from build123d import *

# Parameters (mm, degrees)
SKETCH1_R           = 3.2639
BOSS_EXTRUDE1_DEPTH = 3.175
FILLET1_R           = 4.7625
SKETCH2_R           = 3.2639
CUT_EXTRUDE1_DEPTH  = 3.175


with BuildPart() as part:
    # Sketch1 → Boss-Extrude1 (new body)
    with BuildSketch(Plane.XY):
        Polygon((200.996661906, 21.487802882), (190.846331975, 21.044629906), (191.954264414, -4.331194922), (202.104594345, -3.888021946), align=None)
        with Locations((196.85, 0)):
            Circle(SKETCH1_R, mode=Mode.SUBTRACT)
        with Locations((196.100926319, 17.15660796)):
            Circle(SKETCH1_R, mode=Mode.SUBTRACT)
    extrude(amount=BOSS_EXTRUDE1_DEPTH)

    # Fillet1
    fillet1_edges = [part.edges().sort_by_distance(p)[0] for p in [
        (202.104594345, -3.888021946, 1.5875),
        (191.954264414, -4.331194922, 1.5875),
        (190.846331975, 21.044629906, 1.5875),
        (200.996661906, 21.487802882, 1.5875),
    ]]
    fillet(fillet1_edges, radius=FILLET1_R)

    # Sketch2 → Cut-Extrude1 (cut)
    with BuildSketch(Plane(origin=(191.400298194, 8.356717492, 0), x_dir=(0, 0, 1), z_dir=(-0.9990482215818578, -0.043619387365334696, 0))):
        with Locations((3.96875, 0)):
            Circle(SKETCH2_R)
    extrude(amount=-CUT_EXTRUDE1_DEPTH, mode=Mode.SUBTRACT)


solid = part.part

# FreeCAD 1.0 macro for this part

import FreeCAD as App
import Part
import Sketcher

V = App.Vector
Q = App.Units.Quantity


def edges_at(feature, points):
    """Names of the edges that pass closest to the given points."""
    edges = feature.Shape.Edges
    near = lambda p: min(range(len(edges)), key=lambda i: edges[i].distToShape(Part.Vertex(*p))[0])
    return sorted({f"Edge{near(p) + 1}" for p in points})


def add_polygon(sketch, points):
    """Adds a closed chain of lines whose ends are joined by coincident constraints."""
    first, n = sketch.GeometryCount, len(points)
    for a, b in zip(points, points[1:] + points[:1]):
        sketch.addGeometry(Part.LineSegment(App.Vector(*a, 0), App.Vector(*b, 0)), False)
    for i in range(n):
        sketch.addConstraint(Sketcher.Constraint("Coincident", first + i, 2, first + (i + 1) % n, 1))

doc = App.newDocument("Part")
body = doc.addObject("PartDesign::Body", "Body")

# Sketch on XY plane
sketch1 = body.newObject("Sketcher::SketchObject", "Sketch")
sketch1.AttachmentSupport = (doc.getObject("XY_Plane"), [""])
sketch1.MapMode = "FlatFace"
add_polygon(sketch1, [(200.996662, 21.487803), (190.846332, 21.04463), (191.954264, -4.331195), (202.104594, -3.888022)])  # lines 0-3
sketch1.addGeometry(Part.Circle(V(196.85, 0, 0), V(0, 0, 1), 3.2639), False)  # 4
sketch1.addGeometry(Part.Circle(V(196.100926, 17.156608, 0), V(0, 0, 1), 3.2639), False)  # 5
sketch1.addConstraint([
    Sketcher.Constraint("Equal", 4, 5),
    Sketcher.Constraint("PointOnObject", 4, 3, -1),
    Sketcher.Constraint("Perpendicular", 0, 1),
    Sketcher.Constraint("Perpendicular", 1, 2),
    Sketcher.Constraint("Perpendicular", 2, 3),
    Sketcher.Constraint("Distance", 1, Q("1 in")),
    Sketcher.Constraint("Diameter", 4, Q("0.257 in")),
    Sketcher.Constraint("Distance", 0, Q("0.4 in")),
    Sketcher.Constraint("Angle", 0, Q("-177.5 deg")),
    Sketcher.Constraint("DistanceX", -1, 1, 4, 3, Q("7.75 in")),
    Sketcher.Constraint("DistanceX", -1, 1, 0, 2, 190.846332),
    Sketcher.Constraint("DistanceY", -1, 1, 0, 2, 21.04463),
    Sketcher.Constraint("DistanceY", 5, 3, 0, 2, 3.888022),
    Sketcher.Constraint("DistanceX", 1, 2, 5, 3, 4.146662),
])
pad1 = body.newObject("PartDesign::Pad", "Pad")
pad1.Profile = sketch1
pad1.Length = Q("0.125 in")
doc.recompute()

fillet = body.newObject("PartDesign::Fillet", "Fillet")
fillet.Base = (pad1, edges_at(pad1, [
    (202.105, -3.888, 1.587),
    (191.954, -4.331, 1.587),
    (190.846, 21.045, 1.587),
    (200.997, 21.488, 1.587),
]))
fillet.Radius = Q("0.1875 in")

# Sketch on an angled plane
sketch2 = body.newObject("Sketcher::SketchObject", "Sketch001")
sketch2.Placement = App.Placement(V(191.400298, 8.356717, 0), App.Rotation(V(0, 0, 1), V(-0.043619387, 0.999048222, 0), V(-0.999048222, -0.043619387, 0), "ZXY"))
sketch2.addGeometry(Part.Circle(V(3.96875, 0, 0), V(0, 0, 1), 3.2639), False)
sketch2.addConstraint([
    Sketcher.Constraint("PointOnObject", 0, 3, -1),
    Sketcher.Constraint("Diameter", 0, Q("0.257 in")),
    Sketcher.Constraint("DistanceX", -1, 1, 0, 3, Q("0.15625 in")),
])
pocket1 = body.newObject("PartDesign::Pocket", "Pocket")
pocket1.Profile = sketch2
pocket1.Length = Q("0.125 in")

doc.recompute()
